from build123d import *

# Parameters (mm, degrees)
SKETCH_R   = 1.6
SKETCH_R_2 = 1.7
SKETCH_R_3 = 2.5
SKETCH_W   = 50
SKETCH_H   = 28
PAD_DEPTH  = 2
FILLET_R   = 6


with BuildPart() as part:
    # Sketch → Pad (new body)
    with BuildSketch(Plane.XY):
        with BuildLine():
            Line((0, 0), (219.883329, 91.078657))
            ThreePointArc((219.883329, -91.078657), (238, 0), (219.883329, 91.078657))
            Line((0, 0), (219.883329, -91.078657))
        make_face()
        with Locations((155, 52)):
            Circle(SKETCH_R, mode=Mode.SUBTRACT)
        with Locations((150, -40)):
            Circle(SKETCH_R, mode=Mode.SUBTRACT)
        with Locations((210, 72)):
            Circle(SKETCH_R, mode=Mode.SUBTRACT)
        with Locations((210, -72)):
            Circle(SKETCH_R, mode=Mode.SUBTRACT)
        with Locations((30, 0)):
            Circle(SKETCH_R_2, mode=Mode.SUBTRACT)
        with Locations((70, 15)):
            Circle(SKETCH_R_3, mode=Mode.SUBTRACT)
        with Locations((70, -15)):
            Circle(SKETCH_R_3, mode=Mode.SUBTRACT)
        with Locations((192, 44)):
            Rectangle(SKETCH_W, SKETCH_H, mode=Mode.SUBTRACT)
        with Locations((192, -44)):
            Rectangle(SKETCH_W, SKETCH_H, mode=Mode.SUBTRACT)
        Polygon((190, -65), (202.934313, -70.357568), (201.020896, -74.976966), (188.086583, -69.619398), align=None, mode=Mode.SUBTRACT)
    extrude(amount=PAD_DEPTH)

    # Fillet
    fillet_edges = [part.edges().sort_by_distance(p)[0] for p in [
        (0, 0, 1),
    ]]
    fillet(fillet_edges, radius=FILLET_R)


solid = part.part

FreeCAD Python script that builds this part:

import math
import FreeCAD as App
import Part
import Sketcher
from FreeCAD import Vector
Q = App.Units.Quantity


def edges_at(feature, points):
    """Names of the edges that pass closest to the given points."""
    edges = feature.Shape.Edges
    near = lambda p: min(range(len(edges)), key=lambda i: edges[i].distToShape(Part.Vertex(*p))[0])
    return sorted({f"Edge{near(p) + 1}" for p in points})


def add_polygon(sketch, points):
    """Adds a closed chain of lines whose ends are joined by coincident constraints."""
    first, n = sketch.GeometryCount, len(points)
    for a, b in zip(points, points[1:] + points[:1]):
        sketch.addGeometry(Part.LineSegment(App.Vector(*a, 0), App.Vector(*b, 0)), False)
    for i in range(n):
        sketch.addConstraint(Sketcher.Constraint("Coincident", first + i, 2, first + (i + 1) % n, 1))

doc = App.newDocument("Part")
body = doc.addObject("PartDesign::Body", "Body")

sketch1 = doc.addObject("Sketcher::SketchObject", "Sketch")
body.addObject(sketch1)
sketch1.AttachmentSupport = (doc.XY_Plane, [""])
sketch1.MapMode = "FlatFace"
sketch1.addGeometry(Part.LineSegment(Vector(219.9, 91.1, 0), Vector(0, 0, 0)), False)
sketch1.addGeometry(Part.LineSegment(Vector(0, 0, 0), Vector(219.9, -91.1, 0)), False)
sketch1.addGeometry(Part.ArcOfCircle(Part.Circle(Vector(0, 0, 0), Vector(0, 0, 1), 238), math.radians(-22), math.radians(22)), False)
sketch1.addGeometry(Part.Circle(Vector(210, -72, 0), Vector(0, 0, 1), 1.6), False)
add_polygon(sketch1, [(190, -65), (202.9, -70.4), (201, -75), (188.1, -69.6)])
add_polygon(sketch1, [(167, -58), (167, -30), (217, -30), (217, -58)])
sketch1.addGeometry(Part.Circle(Vector(150, -40, 0), Vector(0, 0, 1), 1.6), False)
sketch1.addGeometry(Part.Circle(Vector(70, -15, 0), Vector(0, 0, 1), 2.5), False)
add_polygon(sketch1, [(167, 30), (167, 58), (217, 58), (217, 30)])
sketch1.addGeometry(Part.Circle(Vector(210, 72, 0), Vector(0, 0, 1), 1.6), False)
sketch1.addGeometry(Part.Circle(Vector(155, 52, 0), Vector(0, 0, 1), 1.6), False)
sketch1.addGeometry(Part.Circle(Vector(70, 15, 0), Vector(0, 0, 1), 2.5), False)
sketch1.addGeometry(Part.Circle(Vector(30, 0, 0), Vector(0, 0, 1), 1.7), False)
sketch1.addConstraint([
    Sketcher.Constraint("Coincident", 0, 2, 1, 1),
    Sketcher.Constraint("Coincident", 1, 2, 2, 1),
    Sketcher.Constraint("Coincident", 2, 2, 0, 1),
    Sketcher.Constraint("Vertical", 8),
    Sketcher.Constraint("Horizontal", 9),
    Sketcher.Constraint("Vertical", 10),
    Sketcher.Constraint("Horizontal", 11),
    Sketcher.Constraint("Vertical", 14),
    Sketcher.Constraint("Horizontal", 15),
    Sketcher.Constraint("Vertical", 16),
    Sketcher.Constraint("Horizontal", 17),
    Sketcher.Constraint("Coincident", 2, 3, -1, 1),
    Sketcher.Constraint("Coincident", 0, 2, -1, 1),
    Sketcher.Constraint("Equal", 3, 12),
    Sketcher.Constraint("Equal", 12, 18),
    Sketcher.Constraint("Equal", 18, 19),
    Sketcher.Constraint("Equal", 13, 20),
    Sketcher.Constraint("Symmetric", 3, 3, 18, 3, -1),
    Sketcher.Constraint("Symmetric", 13, 3, 20, 3, -1),
    Sketcher.Constraint("Symmetric", 11, 2, 14, 2, -1),
    Sketcher.Constraint("Symmetric", 9, 2, 16, 2, -1),
    Sketcher.Constraint("PointOnObject", 21, 3, -1),
    Sketcher.Constraint("Parallel", 1, 4),
    Sketcher.Constraint("Perpendicular", 4, 5),
    Sketcher.Constraint("Perpendicular", 5, 6),
    Sketcher.Constraint("Perpendicular", 6, 7),
    Sketcher.Constraint("Vertical", 1, 2, 2, 2),
    Sketcher.Constraint("Diameter", 13, 5.0),
    Sketcher.Constraint("Diameter", 3, 3.2),
    Sketcher.Constraint("Diameter", 21, 3.4),
    Sketcher.Constraint("DistanceX", 9, 1, 9, 2, 50.0),
    Sketcher.Constraint("DistanceY", 8, 1, 8, 2, 28.0),
    Sketcher.Constraint("Distance", 0, 238.0),
    Sketcher.Constraint("Distance", 4, 14.0),
    Sketcher.Constraint("Distance", 5, 5.0),
    Sketcher.Constraint("DistanceX", -1, 1, 3, 3, 210.0),
    Sketcher.Constraint("DistanceY", 3, 3, -1, 1, 72.0),
    Sketcher.Constraint("DistanceX", -1, 1, 12, 3, 150.0),
    Sketcher.Constraint("DistanceY", 12, 3, -1, 1, 40.0),
    Sketcher.Constraint("DistanceX", -1, 1, 13, 3, 70.0),
    Sketcher.Constraint("DistanceY", 13, 3, -1, 1, 15.0),
    Sketcher.Constraint("DistanceX", -1, 1, 19, 3, 155.0),
    Sketcher.Constraint("DistanceY", -1, 1, 19, 3, 52.0),
    Sketcher.Constraint("DistanceX", -1, 1, 21, 3, 30.0),
    Sketcher.Constraint("DistanceX", -1, 1, 7, 2, 190.0),
    Sketcher.Constraint("DistanceY", 7, 2, -1, 1, 65.0),
    Sketcher.Constraint("DistanceX", -1, 1, 8, 2, 167.0),
    Sketcher.Constraint("DistanceY", 8, 2, -1, 1, 30.0),
    Sketcher.Constraint("Angle", 0, Q("-157.5 deg")),
])
pad1 = doc.addObject("PartDesign::Pad", "Pad")
body.addObject(pad1)
pad1.Profile = sketch1
pad1.Length = 2
doc.recompute()

fillet = doc.addObject("PartDesign::Fillet", "Fillet")
body.addObject(fillet)
fillet.Base = (pad1, edges_at(pad1, [(0, 0, 1)]))
fillet.Radius = 6

doc.recompute()
